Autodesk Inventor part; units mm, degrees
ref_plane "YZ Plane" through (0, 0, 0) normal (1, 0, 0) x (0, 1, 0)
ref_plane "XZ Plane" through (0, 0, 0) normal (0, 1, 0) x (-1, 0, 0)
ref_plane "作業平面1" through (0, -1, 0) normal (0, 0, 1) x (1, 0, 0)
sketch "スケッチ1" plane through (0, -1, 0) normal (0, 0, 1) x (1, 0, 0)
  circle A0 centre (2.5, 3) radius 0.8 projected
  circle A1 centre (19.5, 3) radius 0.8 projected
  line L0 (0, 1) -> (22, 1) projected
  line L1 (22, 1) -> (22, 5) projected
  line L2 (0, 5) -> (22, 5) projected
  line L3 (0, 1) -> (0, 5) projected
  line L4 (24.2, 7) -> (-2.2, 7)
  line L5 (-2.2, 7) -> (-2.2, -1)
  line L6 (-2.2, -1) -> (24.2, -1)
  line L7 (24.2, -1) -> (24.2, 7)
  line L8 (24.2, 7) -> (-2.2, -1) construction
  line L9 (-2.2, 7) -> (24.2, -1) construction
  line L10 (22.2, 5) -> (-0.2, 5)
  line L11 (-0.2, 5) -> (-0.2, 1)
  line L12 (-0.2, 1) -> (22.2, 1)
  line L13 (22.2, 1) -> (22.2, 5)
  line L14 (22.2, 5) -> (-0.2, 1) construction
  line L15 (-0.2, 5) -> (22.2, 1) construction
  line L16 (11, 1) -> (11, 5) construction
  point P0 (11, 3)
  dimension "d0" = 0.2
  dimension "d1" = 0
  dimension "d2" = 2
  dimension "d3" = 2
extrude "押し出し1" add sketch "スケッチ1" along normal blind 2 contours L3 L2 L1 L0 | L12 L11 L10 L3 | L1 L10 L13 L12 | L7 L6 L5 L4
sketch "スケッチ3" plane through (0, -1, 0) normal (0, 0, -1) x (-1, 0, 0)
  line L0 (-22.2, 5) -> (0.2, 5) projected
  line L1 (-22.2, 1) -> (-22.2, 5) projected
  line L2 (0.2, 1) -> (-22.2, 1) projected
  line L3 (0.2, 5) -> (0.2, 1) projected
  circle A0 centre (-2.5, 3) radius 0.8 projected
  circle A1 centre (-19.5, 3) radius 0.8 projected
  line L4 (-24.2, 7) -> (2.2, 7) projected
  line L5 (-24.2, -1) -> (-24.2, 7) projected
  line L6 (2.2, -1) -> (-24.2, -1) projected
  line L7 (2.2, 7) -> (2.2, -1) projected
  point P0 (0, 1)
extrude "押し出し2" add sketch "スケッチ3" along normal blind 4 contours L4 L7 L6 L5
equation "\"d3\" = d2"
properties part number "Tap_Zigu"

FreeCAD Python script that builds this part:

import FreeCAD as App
import Part
import Sketcher
Q = App.Units.Quantity


def add_polygon(sketch, points):
    """Adds a closed chain of lines whose ends are joined by coincident constraints."""
    first, n = sketch.GeometryCount, len(points)
    for a, b in zip(points, points[1:] + points[:1]):
        sketch.addGeometry(Part.LineSegment(App.Vector(*a, 0), App.Vector(*b, 0)), False)
    for i in range(n):
        sketch.addConstraint(Sketcher.Constraint("Coincident", first + i, 2, first + (i + 1) % n, 1))

doc = App.newDocument("Part")
body = doc.addObject("PartDesign::Body", "Body")

# Sketch on XY plane
sketch1 = body.newObject("Sketcher::SketchObject", "Sketch")
sketch1.AttachmentSupport = (doc.getObject("XY_Plane"), [""])
sketch1.MapMode = "FlatFace"
add_polygon(sketch1, [(24.2, -2), (24.2, 6), (-2.2, 6), (-2.2, -2)])  # lines 0-3
sketch1.addGeometry(Part.Circle(App.Vector(2.5, 2, 0), App.Vector(0, 0, 1), 0.8), False)  # 4
sketch1.addGeometry(Part.Circle(App.Vector(19.5, 2, 0), App.Vector(0, 0, 1), 0.8), False)  # 5
sketch1.addConstraint([
    Sketcher.Constraint("Vertical", 0),
    Sketcher.Constraint("Horizontal", 1),
    Sketcher.Constraint("Vertical", 2),
    Sketcher.Constraint("Horizontal", 3),
    Sketcher.Constraint("Equal", 4, 5),
    Sketcher.Constraint("Horizontal", 4, 3, 5, 3),
    Sketcher.Constraint("DistanceY", -1, 1, 4, 3, Q("2 mm")),
    Sketcher.Constraint("DistanceY", 2, 2, -1, 1, Q("2 mm")),
    Sketcher.Constraint("Diameter", 4, Q("1.6 mm")),
    Sketcher.Constraint("DistanceY", 0, 1, 0, 2, Q("8 mm")),
    Sketcher.Constraint("DistanceX", 1, 2, 1, 1, Q("26.4 mm")),
    Sketcher.Constraint("DistanceX", 4, 3, 5, 3, Q("17 mm")),
    Sketcher.Constraint("DistanceX", -1, 1, 4, 3, Q("2.5 mm")),
    Sketcher.Constraint("DistanceX", -1, 1, 0, 2, Q("24.2 mm")),
])
pad1 = body.newObject("PartDesign::Pad", "Pad")
pad1.Profile = sketch1
pad1.Length = 2

# Sketch on XY plane
sketch2 = body.newObject("Sketcher::SketchObject", "Sketch001")
sketch2.AttachmentSupport = (doc.getObject("XY_Plane"), [""])
sketch2.MapMode = "FlatFace"
add_polygon(sketch2, [(-2.2, 6), (24.2, 6), (24.2, -2), (-2.2, -2)])  # lines 0-3
add_polygon(sketch2, [(22.2, 0), (22.2, 4), (-0.2, 4), (-0.2, 0)])  # lines 4-7
sketch2.addConstraint([
    Sketcher.Constraint("Horizontal", 0),
    Sketcher.Constraint("Vertical", 1),
    Sketcher.Constraint("Horizontal", 2),
    Sketcher.Constraint("Vertical", 3),
    Sketcher.Constraint("Vertical", 4),
    Sketcher.Constraint("Horizontal", 5),
    Sketcher.Constraint("Vertical", 6),
    Sketcher.Constraint("Horizontal", 7),
    Sketcher.Constraint("PointOnObject", 6, 2, -1),
    Sketcher.Constraint("DistanceY", 1, 2, 1, 1, Q("8 mm")),
    Sketcher.Constraint("DistanceY", 4, 1, 4, 2, Q("4 mm")),
    Sketcher.Constraint("DistanceX", 0, 1, 0, 2, Q("26.4 mm")),
    Sketcher.Constraint("DistanceX", 5, 2, 5, 1, Q("22.4 mm")),
    Sketcher.Constraint("DistanceY", -1, 1, 0, 2, Q("6 mm")),
    Sketcher.Constraint("DistanceX", 4, 2, 0, 2, Q("2 mm")),
    Sketcher.Constraint("DistanceX", -1, 1, 0, 2, Q("24.2 mm")),
])
pad2 = body.newObject("PartDesign::Pad", "Pad001")
pad2.Profile = sketch2
pad2.Length = 4
pad2.Reversed = True

doc.recompute()
